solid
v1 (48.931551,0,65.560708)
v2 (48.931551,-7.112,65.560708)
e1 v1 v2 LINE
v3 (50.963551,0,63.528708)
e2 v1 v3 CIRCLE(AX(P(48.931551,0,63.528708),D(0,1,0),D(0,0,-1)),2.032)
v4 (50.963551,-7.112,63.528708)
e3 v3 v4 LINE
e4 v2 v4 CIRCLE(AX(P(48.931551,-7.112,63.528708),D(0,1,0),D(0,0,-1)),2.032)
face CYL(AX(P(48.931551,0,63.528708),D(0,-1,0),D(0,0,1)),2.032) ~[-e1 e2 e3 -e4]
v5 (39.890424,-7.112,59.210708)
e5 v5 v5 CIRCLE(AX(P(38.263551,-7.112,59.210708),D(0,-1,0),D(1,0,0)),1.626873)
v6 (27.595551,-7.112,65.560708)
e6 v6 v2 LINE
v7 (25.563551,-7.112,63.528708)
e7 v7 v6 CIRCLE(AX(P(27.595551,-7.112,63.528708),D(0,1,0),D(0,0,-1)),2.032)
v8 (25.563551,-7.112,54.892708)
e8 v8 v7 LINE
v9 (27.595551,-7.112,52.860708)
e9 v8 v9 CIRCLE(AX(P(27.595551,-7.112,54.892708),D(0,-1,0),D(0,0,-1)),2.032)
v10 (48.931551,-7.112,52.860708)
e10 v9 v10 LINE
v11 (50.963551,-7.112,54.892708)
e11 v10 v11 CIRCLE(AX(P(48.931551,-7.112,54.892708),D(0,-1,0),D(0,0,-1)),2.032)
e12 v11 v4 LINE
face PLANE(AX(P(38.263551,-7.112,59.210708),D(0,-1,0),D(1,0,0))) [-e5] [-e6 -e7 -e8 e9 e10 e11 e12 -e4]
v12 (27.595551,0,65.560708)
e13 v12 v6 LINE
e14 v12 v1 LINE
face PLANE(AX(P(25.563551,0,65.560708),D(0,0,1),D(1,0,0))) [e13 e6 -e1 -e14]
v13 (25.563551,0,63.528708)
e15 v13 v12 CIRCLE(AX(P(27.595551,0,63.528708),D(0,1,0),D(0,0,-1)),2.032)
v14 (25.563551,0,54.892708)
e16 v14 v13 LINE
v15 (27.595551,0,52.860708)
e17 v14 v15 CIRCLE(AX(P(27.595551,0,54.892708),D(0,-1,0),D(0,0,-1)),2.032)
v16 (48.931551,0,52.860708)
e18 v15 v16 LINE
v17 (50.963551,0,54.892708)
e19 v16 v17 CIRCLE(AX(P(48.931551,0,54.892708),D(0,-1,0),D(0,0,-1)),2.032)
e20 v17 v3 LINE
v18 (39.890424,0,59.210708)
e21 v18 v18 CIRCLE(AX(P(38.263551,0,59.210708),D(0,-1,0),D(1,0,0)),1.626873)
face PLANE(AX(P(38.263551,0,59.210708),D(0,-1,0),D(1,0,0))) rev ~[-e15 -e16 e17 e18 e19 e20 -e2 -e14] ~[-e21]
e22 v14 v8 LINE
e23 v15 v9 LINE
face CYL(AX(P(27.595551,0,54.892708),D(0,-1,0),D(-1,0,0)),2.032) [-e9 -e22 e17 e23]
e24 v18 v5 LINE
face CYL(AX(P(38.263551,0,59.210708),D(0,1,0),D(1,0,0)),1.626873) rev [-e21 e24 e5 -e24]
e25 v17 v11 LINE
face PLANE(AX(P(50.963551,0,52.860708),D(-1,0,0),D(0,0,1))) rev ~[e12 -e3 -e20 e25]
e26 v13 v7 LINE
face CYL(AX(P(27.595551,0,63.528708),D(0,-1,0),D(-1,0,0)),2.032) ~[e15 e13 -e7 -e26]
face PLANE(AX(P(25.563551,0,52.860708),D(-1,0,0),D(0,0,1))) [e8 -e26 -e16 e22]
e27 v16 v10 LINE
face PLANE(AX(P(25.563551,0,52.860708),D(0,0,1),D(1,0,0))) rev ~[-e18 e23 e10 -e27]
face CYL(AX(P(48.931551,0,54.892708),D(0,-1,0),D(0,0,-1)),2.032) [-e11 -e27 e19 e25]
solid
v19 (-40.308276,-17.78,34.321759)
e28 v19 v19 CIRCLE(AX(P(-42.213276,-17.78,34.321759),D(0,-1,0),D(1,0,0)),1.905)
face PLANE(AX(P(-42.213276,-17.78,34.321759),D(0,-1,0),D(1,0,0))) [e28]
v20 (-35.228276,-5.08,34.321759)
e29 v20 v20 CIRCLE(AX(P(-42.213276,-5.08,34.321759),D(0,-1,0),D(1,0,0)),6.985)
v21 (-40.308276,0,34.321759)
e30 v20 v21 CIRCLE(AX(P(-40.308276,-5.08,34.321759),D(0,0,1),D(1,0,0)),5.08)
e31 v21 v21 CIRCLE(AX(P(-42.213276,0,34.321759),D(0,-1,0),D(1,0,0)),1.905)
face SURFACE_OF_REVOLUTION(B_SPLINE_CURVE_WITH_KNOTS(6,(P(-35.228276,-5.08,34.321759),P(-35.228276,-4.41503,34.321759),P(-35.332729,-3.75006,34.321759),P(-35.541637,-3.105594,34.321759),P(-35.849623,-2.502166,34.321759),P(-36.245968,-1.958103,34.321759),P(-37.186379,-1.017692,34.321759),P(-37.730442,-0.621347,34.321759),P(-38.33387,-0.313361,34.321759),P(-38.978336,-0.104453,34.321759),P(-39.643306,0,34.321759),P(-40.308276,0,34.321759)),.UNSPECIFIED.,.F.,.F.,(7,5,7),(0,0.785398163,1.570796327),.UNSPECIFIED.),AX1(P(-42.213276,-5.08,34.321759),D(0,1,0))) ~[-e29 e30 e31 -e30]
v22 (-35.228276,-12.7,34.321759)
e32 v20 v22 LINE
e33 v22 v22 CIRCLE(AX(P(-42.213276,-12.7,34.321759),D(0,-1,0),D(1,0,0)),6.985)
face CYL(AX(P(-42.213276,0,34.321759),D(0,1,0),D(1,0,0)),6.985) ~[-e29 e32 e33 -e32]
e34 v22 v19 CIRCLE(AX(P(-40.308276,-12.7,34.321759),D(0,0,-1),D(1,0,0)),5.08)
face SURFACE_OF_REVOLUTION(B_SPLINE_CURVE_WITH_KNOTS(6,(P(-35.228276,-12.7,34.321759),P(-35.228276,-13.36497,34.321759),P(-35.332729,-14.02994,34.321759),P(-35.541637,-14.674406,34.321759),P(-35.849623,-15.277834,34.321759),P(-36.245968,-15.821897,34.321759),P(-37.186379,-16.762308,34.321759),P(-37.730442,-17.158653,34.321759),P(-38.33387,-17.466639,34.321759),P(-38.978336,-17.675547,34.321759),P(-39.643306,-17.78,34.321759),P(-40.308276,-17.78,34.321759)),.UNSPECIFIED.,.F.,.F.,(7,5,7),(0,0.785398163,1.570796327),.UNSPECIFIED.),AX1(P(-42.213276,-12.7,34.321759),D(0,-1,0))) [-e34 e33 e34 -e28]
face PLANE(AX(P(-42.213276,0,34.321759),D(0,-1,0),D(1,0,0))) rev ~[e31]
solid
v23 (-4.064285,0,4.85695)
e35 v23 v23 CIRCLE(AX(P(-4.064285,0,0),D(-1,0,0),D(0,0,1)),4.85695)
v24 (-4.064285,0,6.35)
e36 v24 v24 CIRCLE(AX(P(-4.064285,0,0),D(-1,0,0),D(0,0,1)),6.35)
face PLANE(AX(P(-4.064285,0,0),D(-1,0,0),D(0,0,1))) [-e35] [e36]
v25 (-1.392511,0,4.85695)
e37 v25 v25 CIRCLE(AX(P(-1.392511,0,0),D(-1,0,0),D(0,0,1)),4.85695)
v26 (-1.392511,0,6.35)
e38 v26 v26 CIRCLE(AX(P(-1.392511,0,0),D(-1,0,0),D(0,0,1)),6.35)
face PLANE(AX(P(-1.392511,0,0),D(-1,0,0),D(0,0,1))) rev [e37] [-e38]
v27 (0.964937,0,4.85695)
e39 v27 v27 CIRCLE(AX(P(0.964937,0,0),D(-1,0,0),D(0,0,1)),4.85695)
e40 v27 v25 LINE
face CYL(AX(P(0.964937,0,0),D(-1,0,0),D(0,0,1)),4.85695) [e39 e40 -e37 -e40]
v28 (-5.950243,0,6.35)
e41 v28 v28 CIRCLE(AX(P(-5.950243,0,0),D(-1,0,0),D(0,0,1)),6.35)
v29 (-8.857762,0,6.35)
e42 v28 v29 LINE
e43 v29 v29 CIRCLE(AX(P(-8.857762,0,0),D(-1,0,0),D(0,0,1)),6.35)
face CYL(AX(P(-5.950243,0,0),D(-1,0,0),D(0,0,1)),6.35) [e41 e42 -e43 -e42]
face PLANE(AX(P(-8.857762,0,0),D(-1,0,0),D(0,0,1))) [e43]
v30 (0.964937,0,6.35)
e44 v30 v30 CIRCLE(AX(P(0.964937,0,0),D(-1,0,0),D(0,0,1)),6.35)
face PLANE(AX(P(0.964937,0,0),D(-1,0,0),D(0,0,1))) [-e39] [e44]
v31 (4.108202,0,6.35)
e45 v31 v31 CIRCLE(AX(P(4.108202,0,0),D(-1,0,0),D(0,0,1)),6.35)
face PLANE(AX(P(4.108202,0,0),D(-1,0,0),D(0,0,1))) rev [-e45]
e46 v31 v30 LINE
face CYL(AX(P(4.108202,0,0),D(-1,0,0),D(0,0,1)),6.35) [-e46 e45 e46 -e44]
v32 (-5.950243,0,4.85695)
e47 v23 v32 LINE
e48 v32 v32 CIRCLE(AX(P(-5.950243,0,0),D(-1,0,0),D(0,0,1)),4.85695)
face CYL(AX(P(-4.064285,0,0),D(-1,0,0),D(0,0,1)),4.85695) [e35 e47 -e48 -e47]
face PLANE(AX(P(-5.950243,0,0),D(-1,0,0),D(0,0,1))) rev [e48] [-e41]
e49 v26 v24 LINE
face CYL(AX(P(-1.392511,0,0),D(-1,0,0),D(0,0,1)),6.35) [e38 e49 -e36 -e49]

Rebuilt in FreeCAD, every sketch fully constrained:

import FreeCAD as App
import Part
import Sketcher

V = App.Vector
Q = App.Units.Quantity


def edges_at(feature, points):
    """Names of the edges that pass closest to the given points."""
    edges = feature.Shape.Edges
    near = lambda p: min(range(len(edges)), key=lambda i: edges[i].distToShape(Part.Vertex(*p))[0])
    return sorted({f"Edge{near(p) + 1}" for p in points})


def add_polygon(sketch, points):
    """Adds a closed chain of lines whose ends are joined by coincident constraints."""
    first, n = sketch.GeometryCount, len(points)
    for a, b in zip(points, points[1:] + points[:1]):
        sketch.addGeometry(Part.LineSegment(App.Vector(*a, 0), App.Vector(*b, 0)), False)
    for i in range(n):
        sketch.addConstraint(Sketcher.Constraint("Coincident", first + i, 2, first + (i + 1) % n, 1))

doc = App.newDocument("Part")
body = doc.addObject("PartDesign::Body", "Body")

sketch1 = body.newObject("Sketcher::SketchObject", "Sketch")
sketch1.AttachmentSupport = (doc.getObject("XZ_Plane"), [""])
sketch1.MapMode = "FlatFace"
add_polygon(sketch1, [(-8.9, 6.3), (-8.9, 0), (4.1, 0), (4.1, 6.3), (1, 6.3), (1, 4.9), (-1.4, 4.9), (-1.4, 6.3), (-4.1, 6.3), (-4.1, 4.9), (-6, 4.9), (-6, 6.3)])
sketch1.addConstraint(Sketcher.Constraint("Vertical", 0))
sketch1.addConstraint(Sketcher.Constraint("Horizontal", 1))
sketch1.addConstraint(Sketcher.Constraint("Vertical", 2))
sketch1.addConstraint(Sketcher.Constraint("Horizontal", 3))
sketch1.addConstraint(Sketcher.Constraint("Vertical", 4))
sketch1.addConstraint(Sketcher.Constraint("Horizontal", 5))
sketch1.addConstraint(Sketcher.Constraint("Vertical", 6))
sketch1.addConstraint(Sketcher.Constraint("Horizontal", 7))
sketch1.addConstraint(Sketcher.Constraint("Vertical", 8))
sketch1.addConstraint(Sketcher.Constraint("Horizontal", 9))
sketch1.addConstraint(Sketcher.Constraint("Vertical", 10))
sketch1.addConstraint(Sketcher.Constraint("Horizontal", 11))
sketch1.addConstraint(Sketcher.Constraint("PointOnObject", 0, 2, -1))
sketch1.addConstraint(Sketcher.Constraint("Horizontal", 3, 2, 6, 2))
sketch1.addConstraint(Sketcher.Constraint("Horizontal", 5, 2, 8, 2))
sketch1.addConstraint(Sketcher.Constraint("Horizontal", 7, 2, 10, 2))
sketch1.addConstraint(Sketcher.Constraint("DistanceY", 0, 2, 0, 1, Q("0.25 in")))
sketch1.addConstraint(Sketcher.Constraint("DistanceX", 5, 2, 5, 1, Q("2.357448 mm")))
sketch1.addConstraint(Sketcher.Constraint("DistanceX", 9, 2, 9, 1, Q("1.885958 mm")))
sketch1.addConstraint(Sketcher.Constraint("DistanceX", 11, 2, 11, 1, Q("2.907519 mm")))
sketch1.addConstraint(Sketcher.Constraint("DistanceY", 4, 2, 4, 1, Q("1.49305 mm")))
sketch1.addConstraint(Sketcher.Constraint("DistanceX", 0, 2, 3, 2, Q("9.822699 mm")))
sketch1.addConstraint(Sketcher.Constraint("DistanceX", 1, 1, 1, 2, Q("12.965964 mm")))
sketch1.addConstraint(Sketcher.Constraint("DistanceX", 0, 2, -1, 1, Q("8.857762 mm")))
revolution = body.newObject("PartDesign::Revolution", "Revolution")
revolution.Profile = sketch1
revolution.ReferenceAxis = (sketch1, ["H_Axis"])
revolution.Angle = 360
body2 = doc.addObject("PartDesign::Body", "Body001")

sketch2 = body2.newObject("Sketcher::SketchObject", "Sketch001")
sketch2.AttachmentSupport = (doc.getObject("XZ_Plane001"), [""])
sketch2.MapMode = "FlatFace"
sketch2.addGeometry(Part.Circle(V(-42, 34, 0), V(0, 0, 1), 7), False)
sketch2.addConstraint(Sketcher.Constraint("Diameter", 0, Q("0.55 in")))
sketch2.addConstraint(Sketcher.Constraint("DistanceY", -1, 1, 0, 3, Q("34.321759 mm")))
sketch2.addConstraint(Sketcher.Constraint("DistanceX", 0, 3, -1, 1, Q("42.213276 mm")))
pad1 = body2.newObject("PartDesign::Pad", "Pad")
pad1.Profile = sketch2
pad1.Length = Q("0.7 in")
doc.recompute()

fillet = body2.newObject("PartDesign::Fillet", "Fillet")
fillet.Base = (pad1, edges_at(pad1, [(-49.198, -17.78, 34.322), (-49.198, 0, 34.322)]))
fillet.Radius = Q("0.2 in")
body3 = doc.addObject("PartDesign::Body", "Body002")

sketch3 = body3.newObject("Sketcher::SketchObject", "Sketch002")
sketch3.AttachmentSupport = (doc.getObject("XZ_Plane002"), [""])
sketch3.MapMode = "FlatFace"
add_polygon(sketch3, [(25.6, 65.6), (25.6, 52.9), (51, 52.9), (51, 65.6)])
sketch3.addGeometry(Part.Circle(V(38.3, 59.2, 0), V(0, 0, 1), 1.6), False)
sketch3.addConstraint(Sketcher.Constraint("Vertical", 0))
sketch3.addConstraint(Sketcher.Constraint("Horizontal", 1))
sketch3.addConstraint(Sketcher.Constraint("Vertical", 2))
sketch3.addConstraint(Sketcher.Constraint("Horizontal", 3))
sketch3.addConstraint(Sketcher.Constraint("DistanceX", 1, 1, 1, 2, Q("1 in")))
sketch3.addConstraint(Sketcher.Constraint("DistanceY", 0, 2, 0, 1, Q("0.5 in")))
sketch3.addConstraint(Sketcher.Constraint("DistanceX", 0, 2, 4, 3, Q("0.5 in")))
sketch3.addConstraint(Sketcher.Constraint("DistanceY", 0, 2, 4, 3, Q("0.25 in")))
sketch3.addConstraint(Sketcher.Constraint("Diameter", 4, Q("3.253746 mm")))
sketch3.addConstraint(Sketcher.Constraint("DistanceX", -1, 1, 4, 3, Q("38.263551 mm")))
sketch3.addConstraint(Sketcher.Constraint("DistanceY", -1, 1, 0, 2, Q("52.860708 mm")))
pad2 = body3.newObject("PartDesign::Pad", "Pad001")
pad2.Profile = sketch3
pad2.Length = Q("0.28 in")
doc.recompute()

fillet2 = body3.newObject("PartDesign::Fillet", "Fillet001")
fillet2.Base = (pad2, edges_at(pad2, [
    (50.964, -3.556, 65.561),
    (25.564, -3.556, 65.561),
    (25.564, -3.556, 52.861),
    (50.964, -3.556, 52.861),
]))
fillet2.Radius = Q("0.08 in")

doc.recompute()
